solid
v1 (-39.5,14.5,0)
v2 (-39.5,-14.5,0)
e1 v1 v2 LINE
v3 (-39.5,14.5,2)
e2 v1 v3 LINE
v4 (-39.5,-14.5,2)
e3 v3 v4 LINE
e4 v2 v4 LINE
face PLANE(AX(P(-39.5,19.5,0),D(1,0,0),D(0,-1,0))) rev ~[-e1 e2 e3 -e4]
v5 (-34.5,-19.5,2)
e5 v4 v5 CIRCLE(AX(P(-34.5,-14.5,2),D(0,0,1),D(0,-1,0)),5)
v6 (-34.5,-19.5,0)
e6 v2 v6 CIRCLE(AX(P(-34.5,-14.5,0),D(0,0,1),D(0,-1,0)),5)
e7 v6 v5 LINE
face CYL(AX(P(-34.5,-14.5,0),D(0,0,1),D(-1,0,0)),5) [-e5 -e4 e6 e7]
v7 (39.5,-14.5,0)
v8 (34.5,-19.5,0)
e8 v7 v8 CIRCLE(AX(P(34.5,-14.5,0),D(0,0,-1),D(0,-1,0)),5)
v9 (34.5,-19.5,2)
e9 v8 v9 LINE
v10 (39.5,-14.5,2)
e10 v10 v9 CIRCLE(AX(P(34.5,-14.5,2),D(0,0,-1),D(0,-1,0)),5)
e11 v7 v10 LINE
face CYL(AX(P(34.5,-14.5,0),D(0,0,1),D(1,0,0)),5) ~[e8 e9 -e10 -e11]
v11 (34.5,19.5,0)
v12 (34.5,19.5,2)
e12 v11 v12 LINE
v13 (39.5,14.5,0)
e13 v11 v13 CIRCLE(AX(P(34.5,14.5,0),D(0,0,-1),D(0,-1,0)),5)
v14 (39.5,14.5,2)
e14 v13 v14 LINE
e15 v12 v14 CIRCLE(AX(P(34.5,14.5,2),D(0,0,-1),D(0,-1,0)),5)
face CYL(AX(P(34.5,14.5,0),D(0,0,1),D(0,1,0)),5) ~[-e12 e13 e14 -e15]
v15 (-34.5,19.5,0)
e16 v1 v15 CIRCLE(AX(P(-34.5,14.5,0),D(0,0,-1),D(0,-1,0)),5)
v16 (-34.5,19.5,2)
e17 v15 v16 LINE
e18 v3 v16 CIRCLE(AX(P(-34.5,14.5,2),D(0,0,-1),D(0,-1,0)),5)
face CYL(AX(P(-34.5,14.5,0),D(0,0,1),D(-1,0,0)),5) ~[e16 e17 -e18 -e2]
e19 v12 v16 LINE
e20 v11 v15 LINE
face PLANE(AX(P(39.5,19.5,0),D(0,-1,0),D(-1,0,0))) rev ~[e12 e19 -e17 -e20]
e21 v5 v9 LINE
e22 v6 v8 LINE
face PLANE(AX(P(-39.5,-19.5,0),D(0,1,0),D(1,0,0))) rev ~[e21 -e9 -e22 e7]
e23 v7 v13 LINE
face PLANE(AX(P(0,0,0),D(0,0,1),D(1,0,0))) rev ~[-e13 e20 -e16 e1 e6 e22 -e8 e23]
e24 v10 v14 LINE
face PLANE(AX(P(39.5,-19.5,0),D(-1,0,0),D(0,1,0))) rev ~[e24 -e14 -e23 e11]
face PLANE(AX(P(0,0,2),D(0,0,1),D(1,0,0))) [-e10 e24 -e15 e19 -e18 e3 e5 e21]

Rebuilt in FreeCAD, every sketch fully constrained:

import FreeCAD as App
import Part
import Sketcher
from FreeCAD import Vector
Q = App.Units.Quantity


def edges_at(feature, points):
    """Names of the edges that pass closest to the given points."""
    edges = feature.Shape.Edges
    near = lambda p: min(range(len(edges)), key=lambda i: edges[i].distToShape(Part.Vertex(*p))[0])
    return sorted({f"Edge{near(p) + 1}" for p in points})


def add_polygon(sketch, points):
    """Adds a closed chain of lines whose ends are joined by coincident constraints."""
    first, n = sketch.GeometryCount, len(points)
    for a, b in zip(points, points[1:] + points[:1]):
        sketch.addGeometry(Part.LineSegment(App.Vector(*a, 0), App.Vector(*b, 0)), False)
    for i in range(n):
        sketch.addConstraint(Sketcher.Constraint("Coincident", first + i, 2, first + (i + 1) % n, 1))

doc = App.newDocument("Part")
body = doc.addObject("PartDesign::Body", "Body")

sketch1 = doc.addObject("Sketcher::SketchObject", "Sketch")
body.addObject(sketch1)
sketch1.AttachmentSupport = (doc.XY_Plane, [""])
sketch1.MapMode = "FlatFace"
add_polygon(sketch1, [(-40, 20), (-40, -20), (40, -20), (40, 20)])
sketch1.addConstraint(Sketcher.Constraint("Vertical", 0))
sketch1.addConstraint(Sketcher.Constraint("Horizontal", 1))
sketch1.addConstraint(Sketcher.Constraint("Vertical", 2))
sketch1.addConstraint(Sketcher.Constraint("Horizontal", 3))
sketch1.addConstraint(Sketcher.Constraint("Symmetric", 0, 2, 2, 2, -1, 1))
sketch1.addConstraint(Sketcher.Constraint("DistanceX", 1, 1, 1, 2, Q("79 mm")))
sketch1.addConstraint(Sketcher.Constraint("DistanceY", 0, 2, 0, 1, Q("39 mm")))
pad1 = doc.addObject("PartDesign::Pad", "Pad")
body.addObject(pad1)
pad1.Profile = sketch1
pad1.Length = 2
doc.recompute()

fillet = doc.addObject("PartDesign::Fillet", "Fillet")
body.addObject(fillet)
fillet.Base = (pad1, edges_at(pad1, [
    (39.5, 19.5, 1),
    (-39.5, 19.5, 1),
    (39.5, -19.5, 1),
    (-39.5, -19.5, 1),
]))
fillet.Radius = 5

doc.recompute()
